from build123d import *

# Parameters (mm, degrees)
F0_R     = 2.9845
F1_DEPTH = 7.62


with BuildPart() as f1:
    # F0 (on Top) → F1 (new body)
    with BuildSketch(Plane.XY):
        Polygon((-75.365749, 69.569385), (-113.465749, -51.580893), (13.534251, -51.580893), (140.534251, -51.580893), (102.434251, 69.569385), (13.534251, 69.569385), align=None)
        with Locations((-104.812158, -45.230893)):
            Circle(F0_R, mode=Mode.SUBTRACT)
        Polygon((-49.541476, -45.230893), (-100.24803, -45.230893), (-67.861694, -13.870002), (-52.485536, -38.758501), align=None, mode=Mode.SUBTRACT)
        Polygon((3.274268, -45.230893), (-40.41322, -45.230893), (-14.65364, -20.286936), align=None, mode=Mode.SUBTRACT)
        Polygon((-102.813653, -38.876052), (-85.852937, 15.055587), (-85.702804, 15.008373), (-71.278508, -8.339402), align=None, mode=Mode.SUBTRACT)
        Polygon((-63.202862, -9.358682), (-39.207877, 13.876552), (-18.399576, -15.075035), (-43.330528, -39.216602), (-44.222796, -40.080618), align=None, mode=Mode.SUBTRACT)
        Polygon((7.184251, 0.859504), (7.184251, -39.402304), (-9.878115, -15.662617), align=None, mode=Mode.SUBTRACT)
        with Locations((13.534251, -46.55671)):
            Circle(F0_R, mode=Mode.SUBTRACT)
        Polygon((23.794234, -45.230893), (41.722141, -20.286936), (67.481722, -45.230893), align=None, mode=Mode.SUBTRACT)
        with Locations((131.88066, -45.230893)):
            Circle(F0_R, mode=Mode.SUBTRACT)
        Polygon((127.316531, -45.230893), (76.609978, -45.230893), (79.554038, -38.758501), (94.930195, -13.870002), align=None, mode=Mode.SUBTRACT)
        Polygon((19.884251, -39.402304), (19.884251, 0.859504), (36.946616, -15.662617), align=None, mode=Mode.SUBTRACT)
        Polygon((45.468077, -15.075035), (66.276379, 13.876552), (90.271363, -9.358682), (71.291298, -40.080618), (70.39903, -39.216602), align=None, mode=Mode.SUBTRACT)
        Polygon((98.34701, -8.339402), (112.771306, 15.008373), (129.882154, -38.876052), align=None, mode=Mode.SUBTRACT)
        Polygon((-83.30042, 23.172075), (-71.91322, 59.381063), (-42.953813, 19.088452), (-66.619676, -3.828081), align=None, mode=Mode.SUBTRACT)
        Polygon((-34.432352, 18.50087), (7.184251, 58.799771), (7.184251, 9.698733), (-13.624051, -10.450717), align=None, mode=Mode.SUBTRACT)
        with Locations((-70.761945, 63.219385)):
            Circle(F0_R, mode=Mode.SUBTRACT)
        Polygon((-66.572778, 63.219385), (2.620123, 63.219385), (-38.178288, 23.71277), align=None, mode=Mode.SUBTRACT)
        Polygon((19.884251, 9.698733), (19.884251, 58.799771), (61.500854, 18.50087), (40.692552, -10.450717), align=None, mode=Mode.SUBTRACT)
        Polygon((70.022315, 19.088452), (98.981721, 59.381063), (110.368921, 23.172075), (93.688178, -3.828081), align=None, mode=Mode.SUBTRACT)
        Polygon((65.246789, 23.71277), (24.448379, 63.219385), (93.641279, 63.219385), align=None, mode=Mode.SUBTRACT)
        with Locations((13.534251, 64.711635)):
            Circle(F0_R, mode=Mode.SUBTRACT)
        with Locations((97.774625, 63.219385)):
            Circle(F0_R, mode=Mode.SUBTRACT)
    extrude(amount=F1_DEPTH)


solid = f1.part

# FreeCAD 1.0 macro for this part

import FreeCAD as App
import Part
import Sketcher

V = App.Vector
Q = App.Units.Quantity


def add_polygon(sketch, points):
    """Adds a closed chain of lines whose ends are joined by coincident constraints."""
    first, n = sketch.GeometryCount, len(points)
    for a, b in zip(points, points[1:] + points[:1]):
        sketch.addGeometry(Part.LineSegment(App.Vector(*a, 0), App.Vector(*b, 0)), False)
    for i in range(n):
        sketch.addConstraint(Sketcher.Constraint("Coincident", first + i, 2, first + (i + 1) % n, 1))

doc = App.newDocument("Part")
body = doc.addObject("PartDesign::Body", "Body")

sketch1 = body.newObject("Sketcher::SketchObject", "Sketch")
sketch1.AttachmentSupport = (doc.getObject("XY_Plane"), [""])
sketch1.MapMode = "FlatFace"
add_polygon(sketch1, [(-75.37, 69.57), (-113.47, -51.58), (140.53, -51.58), (102.43, 69.57)])
sketch1.addGeometry(Part.Circle(V(-104.81, -45.23, 0), V(0, 0, 1), 2.98), False)
add_polygon(sketch1, [(-52.49, -38.76), (-49.54, -45.23), (-100.25, -45.23), (-67.86, -13.87)])
add_polygon(sketch1, [(-14.65, -20.29), (3.27, -45.23), (-40.41, -45.23)])
add_polygon(sketch1, [(-71.28, -8.34), (-102.81, -38.88), (-85.85, 15.06), (-85.7, 15.01)])
add_polygon(sketch1, [(-44.22, -40.08), (-63.2, -9.36), (-39.21, 13.88), (-18.4, -15.08), (-43.33, -39.22)])
add_polygon(sketch1, [(-9.88, -15.66), (7.18, 0.86), (7.18, -39.4)])
sketch1.addGeometry(Part.Circle(V(13.53, -46.56, 0), V(0, 0, 1), 2.98), False)
add_polygon(sketch1, [(67.48, -45.23), (23.79, -45.23), (41.72, -20.29)])
sketch1.addGeometry(Part.Circle(V(131.88, -45.23, 0), V(0, 0, 1), 2.98), False)
add_polygon(sketch1, [(94.93, -13.87), (127.32, -45.23), (76.61, -45.23), (79.55, -38.76)])
add_polygon(sketch1, [(36.95, -15.66), (19.88, -39.4), (19.88, 0.86)])
add_polygon(sketch1, [(70.4, -39.22), (45.47, -15.08), (66.28, 13.88), (90.27, -9.36), (71.29, -40.08)])
add_polygon(sketch1, [(129.88, -38.88), (98.35, -8.34), (112.77, 15.01)])
add_polygon(sketch1, [(-66.62, -3.83), (-83.3, 23.17), (-71.91, 59.38), (-42.95, 19.09)])
add_polygon(sketch1, [(-13.62, -10.45), (-34.43, 18.5), (7.18, 58.8), (7.18, 9.7)])
sketch1.addGeometry(Part.Circle(V(-70.76, 63.22, 0), V(0, 0, 1), 2.98), False)
add_polygon(sketch1, [(-38.18, 23.71), (-66.57, 63.22), (2.62, 63.22)])
add_polygon(sketch1, [(40.69, -10.45), (19.88, 9.7), (19.88, 58.8), (61.5, 18.5)])
add_polygon(sketch1, [(93.69, -3.83), (70.02, 19.09), (98.98, 59.38), (110.37, 23.17)])
add_polygon(sketch1, [(93.64, 63.22), (65.25, 23.71), (24.45, 63.22)])
sketch1.addGeometry(Part.Circle(V(13.53, 64.71, 0), V(0, 0, 1), 2.98), False)
sketch1.addGeometry(Part.Circle(V(97.77, 63.22, 0), V(0, 0, 1), 2.98), False)
sketch1.addConstraint(Sketcher.Constraint("Horizontal", 1))
sketch1.addConstraint(Sketcher.Constraint("Horizontal", 3))
sketch1.addConstraint(Sketcher.Constraint("Horizontal", 6))
sketch1.addConstraint(Sketcher.Constraint("Horizontal", 10))
sketch1.addConstraint(Sketcher.Constraint("Vertical", 22))
sketch1.addConstraint(Sketcher.Constraint("Horizontal", 25))
sketch1.addConstraint(Sketcher.Constraint("Horizontal", 30))
sketch1.addConstraint(Sketcher.Constraint("Vertical", 34))
sketch1.addConstraint(Sketcher.Constraint("Vertical", 50))
sketch1.addConstraint(Sketcher.Constraint("Horizontal", 54))
sketch1.addConstraint(Sketcher.Constraint("Vertical", 57))
sketch1.addConstraint(Sketcher.Constraint("Horizontal", 66))
sketch1.addConstraint(Sketcher.Constraint("Equal", 4, 24))
sketch1.addConstraint(Sketcher.Constraint("Equal", 24, 28))
sketch1.addConstraint(Sketcher.Constraint("Equal", 28, 52))
sketch1.addConstraint(Sketcher.Constraint("Equal", 52, 67))
sketch1.addConstraint(Sketcher.Constraint("Equal", 67, 68))
sketch1.addConstraint(Sketcher.Constraint("Parallel", 7, 11))
sketch1.addConstraint(Sketcher.Constraint("Parallel", 11, 12))
sketch1.addConstraint(Sketcher.Constraint("Parallel", 0, 13))
sketch1.addConstraint(Sketcher.Constraint("Parallel", 8, 15))
sketch1.addConstraint(Sketcher.Constraint("Parallel", 15, 16))
sketch1.addConstraint(Sketcher.Constraint("Parallel", 12, 17))
sketch1.addConstraint(Sketcher.Constraint("Parallel", 9, 18))
sketch1.addConstraint(Sketcher.Constraint("Parallel", 17, 19))
sketch1.addConstraint(Sketcher.Constraint("Parallel", 19, 20))
sketch1.addConstraint(Sketcher.Constraint("Parallel", 20, 21))
sketch1.addConstraint(Sketcher.Constraint("Parallel", 18, 23))
sketch1.addConstraint(Sketcher.Constraint("Parallel", 27, 29))
sketch1.addConstraint(Sketcher.Constraint("Parallel", 26, 33))
sketch1.addConstraint(Sketcher.Constraint("Parallel", 29, 35))
sketch1.addConstraint(Sketcher.Constraint("Parallel", 35, 36))
sketch1.addConstraint(Sketcher.Constraint("Parallel", 33, 37))
sketch1.addConstraint(Sketcher.Constraint("Parallel", 36, 38))
sketch1.addConstraint(Sketcher.Constraint("Parallel", 32, 39))
sketch1.addConstraint(Sketcher.Constraint("Parallel", 38, 40))
sketch1.addConstraint(Sketcher.Constraint("Parallel", 40, 41))
sketch1.addConstraint(Sketcher.Constraint("Parallel", 39, 42))
sketch1.addConstraint(Sketcher.Constraint("Parallel", 16, 44))
sketch1.addConstraint(Sketcher.Constraint("Parallel", 13, 45))
sketch1.addConstraint(Sketcher.Constraint("Parallel", 23, 46))
sketch1.addConstraint(Sketcher.Constraint("Parallel", 21, 47))
sketch1.addConstraint(Sketcher.Constraint("Parallel", 46, 48))
sketch1.addConstraint(Sketcher.Constraint("Parallel", 47, 49))
sketch1.addConstraint(Sketcher.Constraint("Parallel", 49, 51))
sketch1.addConstraint(Sketcher.Constraint("Parallel", 48, 53))
sketch1.addConstraint(Sketcher.Constraint("Parallel", 51, 55))
sketch1.addConstraint(Sketcher.Constraint("Parallel", 41, 56))
sketch1.addConstraint(Sketcher.Constraint("Parallel", 56, 58))
sketch1.addConstraint(Sketcher.Constraint("Parallel", 37, 59))
sketch1.addConstraint(Sketcher.Constraint("Parallel", 58, 60))
sketch1.addConstraint(Sketcher.Constraint("Parallel", 59, 61))
sketch1.addConstraint(Sketcher.Constraint("Parallel", 2, 62))
sketch1.addConstraint(Sketcher.Constraint("Parallel", 42, 63))
sketch1.addConstraint(Sketcher.Constraint("Parallel", 61, 64))
sketch1.addConstraint(Sketcher.Constraint("Parallel", 60, 65))
sketch1.addConstraint(Sketcher.Constraint("Horizontal", 4, 3, 28, 3))
sketch1.addConstraint(Sketcher.Constraint("Horizontal", 52, 3, 68, 3))
sketch1.addConstraint(Sketcher.Constraint("Horizontal", 28, 3, 5, 2))
sketch1.addConstraint(Sketcher.Constraint("Horizontal", 6, 2, 9, 2))
sketch1.addConstraint(Sketcher.Constraint("Horizontal", 10, 2, 25, 2))
sketch1.addConstraint(Sketcher.Constraint("Horizontal", 11, 2, 26, 2))
sketch1.addConstraint(Sketcher.Constraint("Horizontal", 27, 2, 29, 2))
sketch1.addConstraint(Sketcher.Constraint("Horizontal", 8, 2, 31, 2))
sketch1.addConstraint(Sketcher.Constraint("Horizontal", 7, 2, 32, 2))
sketch1.addConstraint(Sketcher.Constraint("Horizontal", 22, 2, 33, 2))
sketch1.addConstraint(Sketcher.Constraint("Horizontal", 21, 2, 34, 2))
sketch1.addConstraint(Sketcher.Constraint("Horizontal", 23, 2, 35, 2))
sketch1.addConstraint(Sketcher.Constraint("Horizontal", 18, 2, 36, 2))
sketch1.addConstraint(Sketcher.Constraint("Horizontal", 17, 2, 37, 2))
sketch1.addConstraint(Sketcher.Constraint("Horizontal", 16, 2, 38, 2))
sketch1.addConstraint(Sketcher.Constraint("Horizontal", 20, 2, 39, 2))
sketch1.addConstraint(Sketcher.Constraint("Horizontal", 19, 2, 40, 2))
sketch1.addConstraint(Sketcher.Constraint("Horizontal", 15, 2, 41, 2))
sketch1.addConstraint(Sketcher.Constraint("Horizontal", 14, 2, 42, 2))
sketch1.addConstraint(Sketcher.Constraint("Horizontal", 12, 2, 43, 2))
sketch1.addConstraint(Sketcher.Constraint("Horizontal", 68, 3, 53, 2))
sketch1.addConstraint(Sketcher.Constraint("Horizontal", 50, 2, 56, 2))
sketch1.addConstraint(Sketcher.Constraint("Horizontal", 49, 2, 57, 2))
sketch1.addConstraint(Sketcher.Constraint("Horizontal", 48, 2, 58, 2))
sketch1.addConstraint(Sketcher.Constraint("Horizontal", 46, 2, 60, 2))
sketch1.addConstraint(Sketcher.Constraint("Horizontal", 45, 2, 61, 2))
sketch1.addConstraint(Sketcher.Constraint("Horizontal", 44, 2, 62, 2))
sketch1.addConstraint(Sketcher.Constraint("Horizontal", 47, 2, 63, 2))
sketch1.addConstraint(Sketcher.Constraint("Horizontal", 55, 2, 64, 2))
sketch1.addConstraint(Sketcher.Constraint("Horizontal", 54, 2, 65, 2))
sketch1.addConstraint(Sketcher.Constraint("Vertical", 24, 3, 67, 3))
sketch1.addConstraint(Sketcher.Constraint("Vertical", 22, 2, 49, 2))
sketch1.addConstraint(Sketcher.Constraint("Vertical", 34, 2, 56, 2))
sketch1.addConstraint(Sketcher.Constraint("Equal", 10, 25))
sketch1.addConstraint(Sketcher.Constraint("Equal", 6, 30))
sketch1.addConstraint(Sketcher.Constraint("Equal", 37, 48))
sketch1.addConstraint(Sketcher.Constraint("DistanceX", 1, 1, 1, 2, Q("10 in")))
sketch1.addConstraint(Sketcher.Constraint("DistanceX", 3, 2, 3, 1, Q("7 in")))
sketch1.addConstraint(Sketcher.Constraint("Distance", 0, Q("5 in")))
sketch1.addConstraint(Sketcher.Constraint("Diameter", 4, Q("0.235 in")))
sketch1.addConstraint(Sketcher.Constraint("DistanceX", 54, 1, 54, 2, Q("69.192901 mm")))
sketch1.addConstraint(Sketcher.Constraint("Distance", 19, Q("34.704 mm")))
sketch1.addConstraint(Sketcher.Constraint("DistanceX", 10, 2, 10, 1, Q("43.687488 mm")))
sketch1.addConstraint(Sketcher.Constraint("DistanceY", 22, 2, 22, 1, Q("40.261808 mm")))
sketch1.addConstraint(Sketcher.Constraint("DistanceY", 50, 2, 50, 1, Q("49.101038 mm")))
sketch1.addConstraint(Sketcher.Constraint("DistanceY", 8, 2, -1, 1, Q("38.758501 mm")))
sketch1.addConstraint(Sketcher.Constraint("Distance", 5, Q("7.11051 mm")))
sketch1.addConstraint(Sketcher.Constraint("Distance", 7, Q("45.081928 mm")))
sketch1.addConstraint(Sketcher.Constraint("Distance", 9, Q("30.71825 mm")))
sketch1.addConstraint(Sketcher.Constraint("Distance", 13, Q("56.535719 mm")))
sketch1.addConstraint(Sketcher.Constraint("Distance", 14, Q("0.157382 mm")))
sketch1.addConstraint(Sketcher.Constraint("Distance", 16, Q("36.112051 mm")))
sketch1.addConstraint(Sketcher.Constraint("Distance", 17, Q("33.401129 mm")))
sketch1.addConstraint(Sketcher.Constraint("Distance", 18, Q("35.653608 mm")))
sketch1.addConstraint(Sketcher.Constraint("Distance", 43, Q("56.535939 mm")))
sketch1.addConstraint(Sketcher.Constraint("Distance", 44, Q("31.737291 mm")))
sketch1.addConstraint(Sketcher.Constraint("Distance", 47, Q("32.942989 mm")))
sketch1.addConstraint(Sketcher.Constraint("Distance", 51, Q("28.965251 mm")))
sketch1.addConstraint(Sketcher.Constraint("DistanceX", 6, 2, 6, 1, Q("50.706554 mm")))
sketch1.addConstraint(Sketcher.Constraint("DistanceX", -1, 1, 24, 3, Q("13.534251 mm")))
sketch1.addConstraint(Sketcher.Constraint("DistanceY", 24, 3, -1, 1, Q("46.55671 mm")))
sketch1.addConstraint(Sketcher.Constraint("DistanceX", -1, 1, 28, 3, Q("131.88066 mm")))
sketch1.addConstraint(Sketcher.Constraint("DistanceX", 0, 2, -1, 1, Q("113.465749 mm")))
sketch1.addConstraint(Sketcher.Constraint("DistanceX", 6, 2, -1, 1, Q("100.24803 mm")))
sketch1.addConstraint(Sketcher.Constraint("DistanceX", -1, 1, 9, 2, Q("3.274268 mm")))
sketch1.addConstraint(Sketcher.Constraint("DistanceX", 15, 2, -1, 1, Q("71.278508 mm")))
sketch1.addConstraint(Sketcher.Constraint("DistanceX", -1, 1, 21, 2, Q("7.184251 mm")))
sketch1.addConstraint(Sketcher.Constraint("DistanceX", -1, 1, 26, 2, Q("41.722141 mm")))
sketch1.addConstraint(Sketcher.Constraint("DistanceX", -1, 1, 29, 2, Q("127.316531 mm")))
sketch1.addConstraint(Sketcher.Constraint("DistanceX", -1, 1, 33, 2, Q("19.884251 mm")))
sketch1.addConstraint(Sketcher.Constraint("DistanceX", -1, 1, 37, 2, Q("66.276379 mm")))
sketch1.addConstraint(Sketcher.Constraint("DistanceX", -1, 1, 41, 2, Q("98.34701 mm")))
sketch1.addConstraint(Sketcher.Constraint("DistanceX", 44, 2, -1, 1, Q("83.30042 mm")))
sketch1.addConstraint(Sketcher.Constraint("DistanceY", -1, 1, 46, 2, Q("19.088452 mm")))
sketch1.addConstraint(Sketcher.Constraint("DistanceY", -1, 1, 48, 2, Q("18.50087 mm")))
sketch1.addConstraint(Sketcher.Constraint("DistanceX", 53, 2, -1, 1, Q("66.572778 mm")))
sketch1.addConstraint(Sketcher.Constraint("DistanceY", -1, 1, 55, 2, Q("23.71277 mm")))
sketch1.addConstraint(Sketcher.Constraint("DistanceX", -1, 1, 61, 2, Q("98.981721 mm")))
sketch1.addConstraint(Sketcher.Constraint("DistanceX", -1, 1, 64, 2, Q("65.246789 mm")))
sketch1.addConstraint(Sketcher.Constraint("DistanceX", 4, 3, -1, 1, Q("104.812158 mm")))
sketch1.addConstraint(Sketcher.Constraint("DistanceX", 52, 3, -1, 1, Q("70.761945 mm")))
sketch1.addConstraint(Sketcher.Constraint("DistanceY", -1, 1, 67, 3, Q("64.711635 mm")))
sketch1.addConstraint(Sketcher.Constraint("DistanceX", -1, 1, 68, 3, Q("97.774625 mm")))
sketch1.addConstraint(Sketcher.Constraint("DistanceY", 0, 2, -1, 1, Q("51.580893 mm")))
sketch1.addConstraint(Sketcher.Constraint("DistanceY", 12, 2, -1, 1, Q("38.876052 mm")))
sketch1.addConstraint(Sketcher.Constraint("DistanceX", 16, 2, -1, 1, Q("63.202862 mm")))
sketch1.addConstraint(Sketcher.Constraint("DistanceY", 16, 2, -1, 1, Q("9.358682 mm")))
sketch1.addConstraint(Sketcher.Constraint("DistanceY", -1, 1, 21, 2, Q("0.859504 mm")))
pad1 = body.newObject("PartDesign::Pad", "Pad")
pad1.Profile = sketch1
pad1.Length = Q("0.3 in")

doc.recompute()
